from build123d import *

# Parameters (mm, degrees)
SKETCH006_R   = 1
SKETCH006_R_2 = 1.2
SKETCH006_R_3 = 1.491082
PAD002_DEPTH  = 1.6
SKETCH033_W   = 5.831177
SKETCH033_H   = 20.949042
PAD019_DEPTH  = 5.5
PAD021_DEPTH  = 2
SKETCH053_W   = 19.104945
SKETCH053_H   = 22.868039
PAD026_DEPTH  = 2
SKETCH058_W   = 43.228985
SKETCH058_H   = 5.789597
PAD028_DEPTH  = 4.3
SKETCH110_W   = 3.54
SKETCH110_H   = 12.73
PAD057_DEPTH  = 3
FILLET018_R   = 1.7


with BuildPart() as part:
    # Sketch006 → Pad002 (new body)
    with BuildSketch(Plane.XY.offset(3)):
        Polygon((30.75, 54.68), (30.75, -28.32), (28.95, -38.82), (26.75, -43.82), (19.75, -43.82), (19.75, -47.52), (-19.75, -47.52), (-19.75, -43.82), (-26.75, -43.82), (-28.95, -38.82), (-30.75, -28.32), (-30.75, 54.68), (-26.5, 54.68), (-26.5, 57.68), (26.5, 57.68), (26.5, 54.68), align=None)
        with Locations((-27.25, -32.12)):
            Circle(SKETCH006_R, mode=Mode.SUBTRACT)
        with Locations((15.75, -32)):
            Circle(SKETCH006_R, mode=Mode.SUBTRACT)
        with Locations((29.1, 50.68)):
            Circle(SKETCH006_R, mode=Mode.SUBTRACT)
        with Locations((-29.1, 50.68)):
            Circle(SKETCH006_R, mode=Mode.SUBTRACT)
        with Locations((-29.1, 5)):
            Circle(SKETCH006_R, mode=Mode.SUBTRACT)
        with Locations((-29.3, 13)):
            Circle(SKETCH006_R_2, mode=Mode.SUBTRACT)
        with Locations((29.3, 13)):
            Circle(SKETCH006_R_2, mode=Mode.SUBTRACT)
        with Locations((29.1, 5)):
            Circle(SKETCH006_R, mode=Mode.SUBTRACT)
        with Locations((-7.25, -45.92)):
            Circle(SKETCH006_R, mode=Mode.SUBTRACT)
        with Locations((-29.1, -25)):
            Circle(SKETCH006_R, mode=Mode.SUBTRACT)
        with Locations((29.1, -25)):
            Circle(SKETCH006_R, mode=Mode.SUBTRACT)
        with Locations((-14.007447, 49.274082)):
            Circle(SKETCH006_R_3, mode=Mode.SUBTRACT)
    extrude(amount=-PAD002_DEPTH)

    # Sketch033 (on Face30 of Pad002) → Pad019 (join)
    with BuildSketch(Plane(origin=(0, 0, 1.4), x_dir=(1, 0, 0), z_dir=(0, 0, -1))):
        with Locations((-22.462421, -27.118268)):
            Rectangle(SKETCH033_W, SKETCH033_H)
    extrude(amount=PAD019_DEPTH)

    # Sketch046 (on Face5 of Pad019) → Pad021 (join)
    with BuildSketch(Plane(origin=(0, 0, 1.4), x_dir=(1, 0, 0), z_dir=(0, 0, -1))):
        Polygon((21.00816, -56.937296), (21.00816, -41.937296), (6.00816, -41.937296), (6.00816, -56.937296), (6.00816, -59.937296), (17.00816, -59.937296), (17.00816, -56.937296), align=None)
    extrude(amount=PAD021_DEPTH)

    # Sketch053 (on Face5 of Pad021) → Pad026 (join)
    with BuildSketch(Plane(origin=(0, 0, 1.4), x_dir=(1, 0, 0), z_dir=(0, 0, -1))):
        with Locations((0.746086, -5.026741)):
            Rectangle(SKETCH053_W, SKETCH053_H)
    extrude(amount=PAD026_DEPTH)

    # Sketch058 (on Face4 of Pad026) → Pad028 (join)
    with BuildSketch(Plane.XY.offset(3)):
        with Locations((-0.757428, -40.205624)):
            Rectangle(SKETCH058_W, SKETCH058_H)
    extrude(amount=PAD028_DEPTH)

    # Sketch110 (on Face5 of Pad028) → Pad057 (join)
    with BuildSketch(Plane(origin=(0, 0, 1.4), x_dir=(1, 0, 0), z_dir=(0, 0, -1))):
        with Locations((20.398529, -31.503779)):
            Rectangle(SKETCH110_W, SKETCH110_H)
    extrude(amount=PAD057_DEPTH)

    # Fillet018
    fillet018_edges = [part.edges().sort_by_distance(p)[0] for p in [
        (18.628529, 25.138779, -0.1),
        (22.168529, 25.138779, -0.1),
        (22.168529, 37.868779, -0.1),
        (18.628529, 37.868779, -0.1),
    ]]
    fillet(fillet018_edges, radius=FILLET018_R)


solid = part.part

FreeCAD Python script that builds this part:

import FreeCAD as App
import Part
import Sketcher
from FreeCAD import Vector
Q = App.Units.Quantity


def edges_at(feature, points):
    """Names of the edges that pass closest to the given points."""
    edges = feature.Shape.Edges
    near = lambda p: min(range(len(edges)), key=lambda i: edges[i].distToShape(Part.Vertex(*p))[0])
    return sorted({f"Edge{near(p) + 1}" for p in points})

doc = App.newDocument("Part")
params = doc.addObject("Spreadsheet::Sheet", "Params")
for row, (alias, value) in enumerate([
    ("sketch1_diameter", "2 mm"),
    ("sketch1_diameter2", "2.4 mm"),
    ("sketch1_width", "53 mm"),
    ("sketch1_width2", "7 mm"),
    ("sketch1_height", "83 mm"),
    ("pad1_length", "1.6 mm"),
    ("pad2_length", "5.5 mm"),
    ("sketch3_width", "15 mm"),
    ("sketch3_width2", "11 mm"),
    ("sketch3_height", "18 mm"),
    ("pad3_length", "2 mm"),
    ("pad4_length", "2 mm"),
    ("pad5_length", "4.3 mm"),
    ("sketch6_width", "3.54 mm"),
    ("sketch6_height", "12.73 mm"),
    ("pad6_length", "3 mm"),
    ("fillet_radius", "1.7 mm"),
], start=1):
    params.set(f"A{row}", alias)
    params.set(f"B{row}", "=" + value)
    params.setAlias(f"B{row}", alias)

body = doc.addObject("PartDesign::Body", "Body")

sketch1 = body.newObject("Sketcher::SketchObject", "Sketch")
sketch1.AttachmentSupport = (doc.getObject("XY_Plane"), [""])
sketch1.MapMode = "FlatFace"
sketch1.AttachmentOffset = App.Placement(Vector(0, 0, 3), App.Rotation())
sketch1.addGeometry([
    Part.LineSegment(Vector(30.8, -28.3, 0), Vector(30.8, 54.7, 0)),
    Part.LineSegment(Vector(30.8, 54.7, 0), Vector(26.5, 54.7, 0)),
    Part.LineSegment(Vector(26.5, 54.7, 0), Vector(26.5, 57.7, 0)),
    Part.LineSegment(Vector(26.5, 57.7, 0), Vector(-26.5, 57.7, 0)),
    Part.LineSegment(Vector(-26.5, 57.7, 0), Vector(-26.5, 54.7, 0)),
    Part.LineSegment(Vector(-26.5, 54.7, 0), Vector(-30.8, 54.7, 0)),
    Part.LineSegment(Vector(-30.8, 54.7, 0), Vector(-30.8, -28.3, 0)),
    Part.LineSegment(Vector(-30.8, -28.3, 0), Vector(-28.9, -38.8, 0)),
    Part.LineSegment(Vector(-28.9, -38.8, 0), Vector(-26.8, -43.8, 0)),
    Part.LineSegment(Vector(-26.8, -43.8, 0), Vector(-19.8, -43.8, 0)),
    Part.LineSegment(Vector(-19.8, -43.8, 0), Vector(-19.8, -47.5, 0)),
    Part.LineSegment(Vector(-19.8, -47.5, 0), Vector(19.8, -47.5, 0)),
    Part.LineSegment(Vector(19.8, -47.5, 0), Vector(19.8, -43.8, 0)),
    Part.LineSegment(Vector(19.8, -43.8, 0), Vector(26.8, -43.8, 0)),
    Part.LineSegment(Vector(26.8, -43.8, 0), Vector(28.9, -38.8, 0)),
    Part.LineSegment(Vector(28.9, -38.8, 0), Vector(30.8, -28.3, 0)),
    Part.Circle(Vector(29.1, -25, 0), Vector(0, 0, 1), 1),
    Part.Circle(Vector(15.8, -32, 0), Vector(0, 0, 1), 1),
    Part.Circle(Vector(-7.2, -45.9, 0), Vector(0, 0, 1), 1),
    Part.Circle(Vector(-27.2, -32.1, 0), Vector(0, 0, 1), 1),
    Part.Circle(Vector(-29.1, -25, 0), Vector(0, 0, 1), 1),
    Part.Circle(Vector(29.1, 5, 0), Vector(0, 0, 1), 1),
    Part.Circle(Vector(29.3, 13, 0), Vector(0, 0, 1), 1.2),
    Part.Circle(Vector(29.1, 50.7, 0), Vector(0, 0, 1), 1),
    Part.Circle(Vector(-29.1, 5, 0), Vector(0, 0, 1), 1),
    Part.Circle(Vector(-29.3, 13, 0), Vector(0, 0, 1), 1.2),
    Part.Circle(Vector(-14, 49.3, 0), Vector(0, 0, 1), 1.5),
    Part.Circle(Vector(-29.1, 50.7, 0), Vector(0, 0, 1), 1),
], False)
sketch1.addConstraint([
    Sketcher.Constraint("Coincident", 0, 2, 1, 1),
    Sketcher.Constraint("Coincident", 1, 2, 2, 1),
    Sketcher.Constraint("Coincident", 2, 2, 3, 1),
    Sketcher.Constraint("Coincident", 3, 2, 4, 1),
    Sketcher.Constraint("Coincident", 4, 2, 5, 1),
    Sketcher.Constraint("Coincident", 5, 2, 6, 1),
    Sketcher.Constraint("Coincident", 6, 2, 7, 1),
    Sketcher.Constraint("Coincident", 7, 2, 8, 1),
    Sketcher.Constraint("Coincident", 8, 2, 9, 1),
    Sketcher.Constraint("Coincident", 9, 2, 10, 1),
    Sketcher.Constraint("Coincident", 10, 2, 11, 1),
    Sketcher.Constraint("Coincident", 11, 2, 12, 1),
    Sketcher.Constraint("Coincident", 12, 2, 13, 1),
    Sketcher.Constraint("Coincident", 13, 2, 14, 1),
    Sketcher.Constraint("Coincident", 14, 2, 15, 1),
    Sketcher.Constraint("Coincident", 15, 2, 0, 1),
    Sketcher.Constraint("Vertical", 0),
    Sketcher.Constraint("Horizontal", 1),
    Sketcher.Constraint("Vertical", 2),
    Sketcher.Constraint("Horizontal", 3),
    Sketcher.Constraint("Vertical", 4),
    Sketcher.Constraint("Horizontal", 5),
    Sketcher.Constraint("Vertical", 6),
    Sketcher.Constraint("Horizontal", 9),
    Sketcher.Constraint("Vertical", 10),
    Sketcher.Constraint("Horizontal", 11),
    Sketcher.Constraint("Vertical", 12),
    Sketcher.Constraint("Horizontal", 13),
    Sketcher.Constraint("Equal", 16, 17),
    Sketcher.Constraint("Equal", 17, 18),
    Sketcher.Constraint("Equal", 18, 19),
    Sketcher.Constraint("Equal", 19, 20),
    Sketcher.Constraint("Equal", 20, 21),
    Sketcher.Constraint("Equal", 21, 23),
    Sketcher.Constraint("Equal", 23, 24),
    Sketcher.Constraint("Equal", 22, 25),
    Sketcher.Constraint("Equal", 24, 27),
    Sketcher.Constraint("Symmetric", 16, 3, 20, 3, -2),
    Sketcher.Constraint("Symmetric", 21, 3, 24, 3, -2),
    Sketcher.Constraint("Symmetric", 22, 3, 25, 3, -2),
    Sketcher.Constraint("Symmetric", 23, 3, 27, 3, -2),
    Sketcher.Constraint("Symmetric", 1, 2, 4, 2, -2),
    Sketcher.Constraint("Symmetric", 9, 2, 12, 2, -2),
    Sketcher.Constraint("Symmetric", 7, 2, 14, 2, -2),
    Sketcher.Constraint("Symmetric", 6, 2, 15, 2, -2),
    Sketcher.Constraint("Vertical", 16, 3, 21, 3),
    Sketcher.Constraint("Vertical", 21, 3, 23, 3),
    Sketcher.Constraint("Equal", 9, 13),
    Sketcher.Constraint("Diameter", 16, Q("2 mm")),
    Sketcher.Constraint("Diameter", 22, Q("2.4 mm")),
    Sketcher.Constraint("DistanceX", 3, 2, 3, 1, Q("53 mm")),
    Sketcher.Constraint("DistanceX", 9, 1, 9, 2, Q("7 mm")),
    Sketcher.Constraint("DistanceY", 0, 1, 0, 2, Q("83 mm")),
    Sketcher.Constraint("DistanceY", 2, 1, 2, 2, Q("3 mm")),
    Sketcher.Constraint("DistanceX", 11, 1, 11, 2, Q("39.5 mm")),
    Sketcher.Constraint("DistanceY", 10, 2, 10, 1, Q("3.7 mm")),
    Sketcher.Constraint("DistanceY", 16, 3, -1, 1, Q("25 mm")),
    Sketcher.Constraint("DistanceY", 17, 3, -1, 1, Q("32 mm")),
    Sketcher.Constraint("DistanceY", -1, 1, 21, 3, Q("5 mm")),
    Sketcher.Constraint("DistanceY", -1, 1, 22, 3, Q("13 mm")),
    Sketcher.Constraint("DistanceX", 18, 3, 17, 3, Q("23 mm")),
    Sketcher.Constraint("DistanceX", 19, 3, 18, 3, Q("20 mm")),
    Sketcher.Constraint("DistanceY", 23, 3, 0, 2, Q("4 mm")),
    Sketcher.Constraint("DistanceY", 8, 2, 7, 2, Q("5 mm")),
    Sketcher.Constraint("DistanceX", 6, 2, 8, 2, Q("4 mm")),
    Sketcher.Constraint("DistanceX", 17, 3, 11, 2, Q("4 mm")),
    Sketcher.Constraint("DistanceX", -1, 1, 16, 3, Q("29.1 mm")),
    Sketcher.Constraint("DistanceX", -1, 1, 22, 3, Q("29.3 mm")),
    Sketcher.Constraint("DistanceY", 18, 3, 19, 3, Q("13.8 mm")),
    Sketcher.Constraint("DistanceY", 19, 3, 6, 2, Q("3.8 mm")),
    Sketcher.Constraint("DistanceX", 7, 2, 19, 3, Q("1.7 mm")),
    Sketcher.Constraint("DistanceY", 7, 2, 19, 3, Q("6.7 mm")),
    Sketcher.Constraint("DistanceY", 18, 3, -1, 1, Q("45.92 mm")),
    Sketcher.Constraint("Diameter", 26, Q("2.982164 mm")),
    Sketcher.Constraint("DistanceX", 26, 3, -1, 1, Q("14.007447 mm")),
    Sketcher.Constraint("DistanceY", -1, 1, 26, 3, Q("49.274082 mm")),
])
sketch1.setExpression("Constraints[48]", "Params.sketch1_diameter")
sketch1.setExpression("Constraints[49]", "Params.sketch1_diameter2")
sketch1.setExpression("Constraints[50]", "Params.sketch1_width")
sketch1.setExpression("Constraints[51]", "Params.sketch1_width2")
sketch1.setExpression("Constraints[52]", "Params.sketch1_height")
pad1 = body.newObject("PartDesign::Pad", "Pad")
pad1.Profile = sketch1
pad1.setExpression("Length", "Params.pad1_length")
pad1.Reversed = True

sketch2 = body.newObject("Sketcher::SketchObject", "Sketch001")
sketch2.AttachmentSupport = (doc.getObject("XY_Plane"), [""])
sketch2.MapMode = "FlatFace"
sketch2.AttachmentOffset = App.Placement(Vector(0, 0, 1.4), App.Rotation())
sketch2.addGeometry([
    Part.LineSegment(Vector(-25, 17, 0), Vector(-25, 38, 0)),
    Part.LineSegment(Vector(-25, 38, 0), Vector(-20, 38, 0)),
    Part.LineSegment(Vector(-20, 38, 0), Vector(-20, 17, 0)),
    Part.LineSegment(Vector(-20, 17, 0), Vector(-25, 17, 0)),
], False)
sketch2.addConstraint([
    Sketcher.Constraint("Coincident", 0, 2, 1, 1),
    Sketcher.Constraint("Coincident", 1, 2, 2, 1),
    Sketcher.Constraint("Coincident", 2, 2, 3, 1),
    Sketcher.Constraint("Coincident", 3, 2, 0, 1),
    Sketcher.Constraint("Vertical", 0),
    Sketcher.Constraint("Horizontal", 1),
    Sketcher.Constraint("Vertical", 2),
    Sketcher.Constraint("Horizontal", 3),
    Sketcher.Constraint("DistanceX", 1, 1, 1, 2, Q("5.831177 mm")),
    Sketcher.Constraint("DistanceY", 0, 1, 0, 2, Q("20.949042 mm")),
    Sketcher.Constraint("DistanceX", 0, 2, -1, 1, Q("25.37801 mm")),
    Sketcher.Constraint("DistanceY", -1, 1, 0, 2, Q("37.592789 mm")),
])
pad2 = body.newObject("PartDesign::Pad", "Pad001")
pad2.Profile = sketch2
pad2.setExpression("Length", "Params.pad2_length")
pad2.Reversed = True

sketch3 = body.newObject("Sketcher::SketchObject", "Sketch002")
sketch3.AttachmentSupport = (doc.getObject("XY_Plane"), [""])
sketch3.MapMode = "FlatFace"
sketch3.AttachmentOffset = App.Placement(Vector(0, 0, 1.4), App.Rotation())
sketch3.addGeometry([
    Part.LineSegment(Vector(21, 56.9, 0), Vector(21, 41.9, 0)),
    Part.LineSegment(Vector(21, 41.9, 0), Vector(6, 41.9, 0)),
    Part.LineSegment(Vector(6, 41.9, 0), Vector(6, 59.9, 0)),
    Part.LineSegment(Vector(6, 59.9, 0), Vector(17, 59.9, 0)),
    Part.LineSegment(Vector(17, 59.9, 0), Vector(17, 56.9, 0)),
    Part.LineSegment(Vector(17, 56.9, 0), Vector(21, 56.9, 0)),
], False)
sketch3.addConstraint([
    Sketcher.Constraint("Coincident", 0, 2, 1, 1),
    Sketcher.Constraint("Coincident", 1, 2, 2, 1),
    Sketcher.Constraint("Coincident", 2, 2, 3, 1),
    Sketcher.Constraint("Coincident", 3, 2, 4, 1),
    Sketcher.Constraint("Coincident", 4, 2, 5, 1),
    Sketcher.Constraint("Coincident", 5, 2, 0, 1),
    Sketcher.Constraint("Vertical", 0),
    Sketcher.Constraint("Horizontal", 1),
    Sketcher.Constraint("Vertical", 2),
    Sketcher.Constraint("Horizontal", 3),
    Sketcher.Constraint("Vertical", 4),
    Sketcher.Constraint("Horizontal", 5),
    Sketcher.Constraint("Equal", 1, 0),
    Sketcher.Constraint("DistanceX", 1, 2, 1, 1, Q("15 mm")),
    Sketcher.Constraint("DistanceX", 3, 1, 3, 2, Q("11 mm")),
    Sketcher.Constraint("DistanceY", 2, 1, 2, 2, Q("18 mm")),
    Sketcher.Constraint("DistanceX", -1, 1, 0, 2, Q("21.00816 mm")),
    Sketcher.Constraint("DistanceY", -1, 1, 0, 2, Q("41.937296 mm")),
])
sketch3.setExpression("Constraints[13]", "Params.sketch3_width")
sketch3.setExpression("Constraints[14]", "Params.sketch3_width2")
sketch3.setExpression("Constraints[15]", "Params.sketch3_height")
pad3 = body.newObject("PartDesign::Pad", "Pad002")
pad3.Profile = sketch3
pad3.setExpression("Length", "Params.pad3_length")
pad3.Reversed = True

sketch4 = body.newObject("Sketcher::SketchObject", "Sketch003")
sketch4.AttachmentSupport = (doc.getObject("XY_Plane"), [""])
sketch4.MapMode = "FlatFace"
sketch4.AttachmentOffset = App.Placement(Vector(0, 0, 1.4), App.Rotation())
sketch4.addGeometry([
    Part.LineSegment(Vector(-9, -6, 0), Vector(-9, 16, 0)),
    Part.LineSegment(Vector(-9, 16, 0), Vector(10, 16, 0)),
    Part.LineSegment(Vector(10, 16, 0), Vector(10, -6, 0)),
    Part.LineSegment(Vector(10, -6, 0), Vector(-9, -6, 0)),
], False)
sketch4.addConstraint([
    Sketcher.Constraint("Coincident", 0, 2, 1, 1),
    Sketcher.Constraint("Coincident", 1, 2, 2, 1),
    Sketcher.Constraint("Coincident", 2, 2, 3, 1),
    Sketcher.Constraint("Coincident", 3, 2, 0, 1),
    Sketcher.Constraint("Vertical", 0),
    Sketcher.Constraint("Horizontal", 1),
    Sketcher.Constraint("Vertical", 2),
    Sketcher.Constraint("Horizontal", 3),
    Sketcher.Constraint("DistanceY", 0, 1, 0, 2, Q("22.868039 mm")),
    Sketcher.Constraint("DistanceX", 1, 1, 1, 2, Q("19.104945 mm")),
    Sketcher.Constraint("DistanceY", -1, 1, 0, 2, Q("16.46076 mm")),
    Sketcher.Constraint("DistanceX", -1, 1, 1, 2, Q("10.298559 mm")),
])
pad4 = body.newObject("PartDesign::Pad", "Pad003")
pad4.Profile = sketch4
pad4.setExpression("Length", "Params.pad4_length")
pad4.Reversed = True

sketch5 = body.newObject("Sketcher::SketchObject", "Sketch004")
sketch5.AttachmentSupport = (doc.getObject("XY_Plane"), [""])
sketch5.MapMode = "FlatFace"
sketch5.AttachmentOffset = App.Placement(Vector(0, 0, 3), App.Rotation())
sketch5.addGeometry([
    Part.LineSegment(Vector(-22, -37, 0), Vector(-22, -43, 0)),
    Part.LineSegment(Vector(-22, -43, 0), Vector(21, -43, 0)),
    Part.LineSegment(Vector(21, -43, 0), Vector(21, -37, 0)),
    Part.LineSegment(Vector(21, -37, 0), Vector(-22, -37, 0)),
], False)
sketch5.addConstraint([
    Sketcher.Constraint("Coincident", 0, 2, 1, 1),
    Sketcher.Constraint("Coincident", 1, 2, 2, 1),
    Sketcher.Constraint("Coincident", 2, 2, 3, 1),
    Sketcher.Constraint("Coincident", 3, 2, 0, 1),
    Sketcher.Constraint("Vertical", 0),
    Sketcher.Constraint("Horizontal", 1),
    Sketcher.Constraint("Vertical", 2),
    Sketcher.Constraint("Horizontal", 3),
    Sketcher.Constraint("DistanceX", 1, 1, 1, 2, Q("43.228985 mm")),
    Sketcher.Constraint("DistanceY", 0, 2, 0, 1, Q("5.789597 mm")),
    Sketcher.Constraint("DistanceX", 0, 2, -1, 1, Q("22.371921 mm")),
    Sketcher.Constraint("DistanceY", 0, 2, -1, 1, Q("43.100423 mm")),
])
pad5 = body.newObject("PartDesign::Pad", "Pad004")
pad5.Profile = sketch5
pad5.setExpression("Length", "Params.pad5_length")

sketch6 = body.newObject("Sketcher::SketchObject", "Sketch005")
sketch6.AttachmentSupport = (doc.getObject("XY_Plane"), [""])
sketch6.MapMode = "FlatFace"
sketch6.AttachmentOffset = App.Placement(Vector(0, 0, 1.4), App.Rotation())
sketch6.addGeometry([
    Part.LineSegment(Vector(18.6, 25.1, 0), Vector(18.6, 37.9, 0)),
    Part.LineSegment(Vector(18.6, 37.9, 0), Vector(22.2, 37.9, 0)),
    Part.LineSegment(Vector(22.2, 37.9, 0), Vector(22.2, 25.1, 0)),
    Part.LineSegment(Vector(22.2, 25.1, 0), Vector(18.6, 25.1, 0)),
], False)
sketch6.addConstraint([
    Sketcher.Constraint("Coincident", 0, 2, 1, 1),
    Sketcher.Constraint("Coincident", 1, 2, 2, 1),
    Sketcher.Constraint("Coincident", 2, 2, 3, 1),
    Sketcher.Constraint("Coincident", 3, 2, 0, 1),
    Sketcher.Constraint("Vertical", 0),
    Sketcher.Constraint("Horizontal", 1),
    Sketcher.Constraint("Vertical", 2),
    Sketcher.Constraint("Horizontal", 3),
    Sketcher.Constraint("DistanceX", 1, 1, 1, 2, Q("3.54 mm")),
    Sketcher.Constraint("DistanceY", 0, 1, 0, 2, Q("12.73 mm")),
    Sketcher.Constraint("DistanceX", -1, 1, 0, 2, Q("18.628529 mm")),
    Sketcher.Constraint("DistanceY", -1, 1, 0, 2, Q("37.868779 mm")),
])
sketch6.setExpression("Constraints[8]", "Params.sketch6_width")
sketch6.setExpression("Constraints[9]", "Params.sketch6_height")
pad6 = body.newObject("PartDesign::Pad", "Pad005")
pad6.Profile = sketch6
pad6.setExpression("Length", "Params.pad6_length")
pad6.Reversed = True
doc.recompute()

fillet = body.newObject("PartDesign::Fillet", "Fillet")
fillet.Base = (pad6, edges_at(pad6, [
    (18.629, 25.139, -0.1),
    (22.169, 25.139, -0.1),
    (22.169, 37.869, -0.1),
    (18.629, 37.869, -0.1),
]))
fillet.setExpression("Radius", "Params.fillet_radius")

doc.recompute()
